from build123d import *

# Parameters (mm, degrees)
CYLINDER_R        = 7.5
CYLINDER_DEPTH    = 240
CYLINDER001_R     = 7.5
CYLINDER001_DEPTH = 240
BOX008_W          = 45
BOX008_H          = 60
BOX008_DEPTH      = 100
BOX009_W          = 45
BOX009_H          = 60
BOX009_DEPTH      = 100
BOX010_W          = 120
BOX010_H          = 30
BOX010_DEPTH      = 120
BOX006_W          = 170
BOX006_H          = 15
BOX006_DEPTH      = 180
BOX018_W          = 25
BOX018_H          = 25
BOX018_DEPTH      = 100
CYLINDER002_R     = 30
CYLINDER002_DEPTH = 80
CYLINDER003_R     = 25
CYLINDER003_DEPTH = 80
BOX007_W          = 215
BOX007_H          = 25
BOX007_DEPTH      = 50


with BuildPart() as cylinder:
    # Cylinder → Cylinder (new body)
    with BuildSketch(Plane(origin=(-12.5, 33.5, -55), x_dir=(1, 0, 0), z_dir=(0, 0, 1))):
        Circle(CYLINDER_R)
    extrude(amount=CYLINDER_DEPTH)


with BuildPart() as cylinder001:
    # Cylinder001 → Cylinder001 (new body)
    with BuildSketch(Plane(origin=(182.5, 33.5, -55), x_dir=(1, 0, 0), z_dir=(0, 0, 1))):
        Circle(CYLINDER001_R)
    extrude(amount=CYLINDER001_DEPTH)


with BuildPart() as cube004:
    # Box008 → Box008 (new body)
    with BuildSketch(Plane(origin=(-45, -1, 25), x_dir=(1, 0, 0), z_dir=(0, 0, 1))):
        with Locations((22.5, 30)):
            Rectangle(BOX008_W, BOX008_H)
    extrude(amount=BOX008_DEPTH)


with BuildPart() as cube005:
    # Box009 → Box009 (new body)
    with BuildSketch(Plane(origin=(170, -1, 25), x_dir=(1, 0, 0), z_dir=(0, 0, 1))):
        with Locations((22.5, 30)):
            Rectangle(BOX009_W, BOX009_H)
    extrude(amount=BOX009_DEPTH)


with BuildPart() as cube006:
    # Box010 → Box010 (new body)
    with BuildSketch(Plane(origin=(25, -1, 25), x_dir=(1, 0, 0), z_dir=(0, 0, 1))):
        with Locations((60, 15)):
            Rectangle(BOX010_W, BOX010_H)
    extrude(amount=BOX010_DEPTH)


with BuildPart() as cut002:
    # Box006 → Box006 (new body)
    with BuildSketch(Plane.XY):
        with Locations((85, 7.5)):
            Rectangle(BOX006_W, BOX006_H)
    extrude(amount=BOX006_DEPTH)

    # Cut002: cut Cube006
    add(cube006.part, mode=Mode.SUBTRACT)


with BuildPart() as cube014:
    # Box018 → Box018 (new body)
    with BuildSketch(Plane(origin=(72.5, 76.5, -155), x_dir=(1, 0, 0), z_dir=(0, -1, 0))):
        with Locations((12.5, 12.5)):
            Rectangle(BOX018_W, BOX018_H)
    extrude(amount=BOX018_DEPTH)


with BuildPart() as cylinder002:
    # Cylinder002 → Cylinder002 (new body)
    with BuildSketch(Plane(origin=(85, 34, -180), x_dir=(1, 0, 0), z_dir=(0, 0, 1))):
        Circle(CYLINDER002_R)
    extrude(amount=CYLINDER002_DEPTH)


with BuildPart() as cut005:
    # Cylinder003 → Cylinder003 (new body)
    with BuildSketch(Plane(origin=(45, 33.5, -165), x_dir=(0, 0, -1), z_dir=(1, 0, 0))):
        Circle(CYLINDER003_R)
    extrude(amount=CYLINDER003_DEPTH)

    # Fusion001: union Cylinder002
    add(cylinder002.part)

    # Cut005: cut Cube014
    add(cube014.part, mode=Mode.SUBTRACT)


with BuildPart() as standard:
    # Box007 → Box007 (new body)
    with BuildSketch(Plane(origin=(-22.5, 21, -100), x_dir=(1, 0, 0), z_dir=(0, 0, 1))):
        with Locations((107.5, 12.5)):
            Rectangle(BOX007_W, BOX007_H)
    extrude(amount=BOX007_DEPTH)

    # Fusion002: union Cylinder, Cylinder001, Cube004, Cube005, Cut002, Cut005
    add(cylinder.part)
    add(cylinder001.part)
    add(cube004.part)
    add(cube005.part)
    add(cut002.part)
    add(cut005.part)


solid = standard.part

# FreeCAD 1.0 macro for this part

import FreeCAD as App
import Part
import Sketcher
Q = App.Units.Quantity


def add_polygon(sketch, points):
    """Adds a closed chain of lines whose ends are joined by coincident constraints."""
    first, n = sketch.GeometryCount, len(points)
    for a, b in zip(points, points[1:] + points[:1]):
        sketch.addGeometry(Part.LineSegment(App.Vector(*a, 0), App.Vector(*b, 0)), False)
    for i in range(n):
        sketch.addConstraint(Sketcher.Constraint("Coincident", first + i, 2, first + (i + 1) % n, 1))

doc = App.newDocument("Part")
body = doc.addObject("PartDesign::Body", "Body")

sketch1 = body.newObject("Sketcher::SketchObject", "Sketch")
sketch1.AttachmentSupport = (doc.getObject("XY_Plane"), [""])
sketch1.MapMode = "FlatFace"
sketch1.AttachmentOffset = App.Placement(App.Vector(0, 0, -55), App.Rotation())
sketch1.addGeometry(Part.Circle(App.Vector(-12, 34, 0), App.Vector(0, 0, 1), 8), False)
sketch1.addConstraint([
    Sketcher.Constraint("Diameter", 0, Q("15 mm")),
    Sketcher.Constraint("DistanceX", 0, 3, -1, 1, Q("12.5 mm")),
    Sketcher.Constraint("DistanceY", -1, 1, 0, 3, Q("33.5 mm")),
])
pad1 = body.newObject("PartDesign::Pad", "Pad")
pad1.Profile = sketch1
pad1.Length = 240
body2 = doc.addObject("PartDesign::Body", "Body001")

sketch2 = body2.newObject("Sketcher::SketchObject", "Sketch001")
sketch2.AttachmentSupport = (doc.getObject("XY_Plane001"), [""])
sketch2.MapMode = "FlatFace"
sketch2.AttachmentOffset = App.Placement(App.Vector(0, 0, -55), App.Rotation())
sketch2.addGeometry(Part.Circle(App.Vector(182, 34, 0), App.Vector(0, 0, 1), 8), False)
sketch2.addConstraint([
    Sketcher.Constraint("Diameter", 0, Q("15 mm")),
    Sketcher.Constraint("DistanceX", -1, 1, 0, 3, Q("182.5 mm")),
    Sketcher.Constraint("DistanceY", -1, 1, 0, 3, Q("33.5 mm")),
])
pad2 = body2.newObject("PartDesign::Pad", "Pad001")
pad2.Profile = sketch2
pad2.Length = 240
body3 = doc.addObject("PartDesign::Body", "Body002")

sketch3 = body3.newObject("Sketcher::SketchObject", "Sketch002")
sketch3.AttachmentSupport = (doc.getObject("XY_Plane002"), [""])
sketch3.MapMode = "FlatFace"
sketch3.AttachmentOffset = App.Placement(App.Vector(0, 0, 25), App.Rotation())
add_polygon(sketch3, [(-45, 59), (-45, -1), (0, -1), (0, 59)])
sketch3.addConstraint([
    Sketcher.Constraint("Vertical", 0),
    Sketcher.Constraint("Horizontal", 1),
    Sketcher.Constraint("Vertical", 2),
    Sketcher.Constraint("Horizontal", 3),
    Sketcher.Constraint("PointOnObject", 1, 2, -2),
    Sketcher.Constraint("DistanceX", 1, 1, 1, 2, Q("45 mm")),
    Sketcher.Constraint("DistanceY", 0, 2, 0, 1, Q("60 mm")),
    Sketcher.Constraint("DistanceY", 0, 2, -1, 1, Q("1 mm")),
])
pad3 = body3.newObject("PartDesign::Pad", "Pad002")
pad3.Profile = sketch3
pad3.Length = 100
body4 = doc.addObject("PartDesign::Body", "Body003")

sketch4 = body4.newObject("Sketcher::SketchObject", "Sketch003")
sketch4.AttachmentSupport = (doc.getObject("XY_Plane003"), [""])
sketch4.MapMode = "FlatFace"
sketch4.AttachmentOffset = App.Placement(App.Vector(0, 0, 25), App.Rotation())
add_polygon(sketch4, [(170, 59), (170, -1), (215, -1), (215, 59)])
sketch4.addConstraint([
    Sketcher.Constraint("Vertical", 0),
    Sketcher.Constraint("Horizontal", 1),
    Sketcher.Constraint("Vertical", 2),
    Sketcher.Constraint("Horizontal", 3),
    Sketcher.Constraint("DistanceX", 1, 1, 1, 2, Q("45 mm")),
    Sketcher.Constraint("DistanceY", 0, 2, 0, 1, Q("60 mm")),
    Sketcher.Constraint("DistanceX", -1, 1, 0, 2, Q("170 mm")),
    Sketcher.Constraint("DistanceY", 0, 2, -1, 1, Q("1 mm")),
])
pad4 = body4.newObject("PartDesign::Pad", "Pad003")
pad4.Profile = sketch4
pad4.Length = 100
body5 = doc.addObject("PartDesign::Body", "Body004")

sketch5 = body5.newObject("Sketcher::SketchObject", "Sketch004")
sketch5.AttachmentSupport = (doc.getObject("XY_Plane004"), [""])
sketch5.MapMode = "FlatFace"
sketch5.AttachmentOffset = App.Placement(App.Vector(0, 0, 25), App.Rotation())
add_polygon(sketch5, [(25, 29), (25, -1), (145, -1), (145, 29)])
sketch5.addConstraint([
    Sketcher.Constraint("Vertical", 0),
    Sketcher.Constraint("Horizontal", 1),
    Sketcher.Constraint("Vertical", 2),
    Sketcher.Constraint("Horizontal", 3),
    Sketcher.Constraint("DistanceX", 1, 1, 1, 2, Q("120 mm")),
    Sketcher.Constraint("DistanceY", 0, 2, 0, 1, Q("30 mm")),
    Sketcher.Constraint("DistanceX", -1, 1, 0, 2, Q("25 mm")),
    Sketcher.Constraint("DistanceY", 0, 2, -1, 1, Q("1 mm")),
])
pad5 = body5.newObject("PartDesign::Pad", "Pad004")
pad5.Profile = sketch5
pad5.Length = 120
body6 = doc.addObject("PartDesign::Body", "Body005")

sketch6 = body6.newObject("Sketcher::SketchObject", "Sketch005")
sketch6.AttachmentSupport = (doc.getObject("XY_Plane005"), [""])
sketch6.MapMode = "FlatFace"
add_polygon(sketch6, [(0, 15), (0, 0), (170, 0), (170, 15)])
sketch6.addConstraint([
    Sketcher.Constraint("Vertical", 0),
    Sketcher.Constraint("Horizontal", 1),
    Sketcher.Constraint("Vertical", 2),
    Sketcher.Constraint("Horizontal", 3),
    Sketcher.Constraint("Coincident", 0, 2, -1, 1),
    Sketcher.Constraint("DistanceX", 1, 1, 1, 2, Q("170 mm")),
    Sketcher.Constraint("DistanceY", 0, 2, 0, 1, Q("15 mm")),
])
pad6 = body6.newObject("PartDesign::Pad", "Pad005")
pad6.Profile = sketch6
pad6.Length = 180
doc.recompute()

boolean = body6.newObject("PartDesign::Boolean", "Boolean")
boolean.Type = "Cut"
boolean.addObjects([body5])
body7 = doc.addObject("PartDesign::Body", "Body006")

sketch7 = body7.newObject("Sketcher::SketchObject", "Sketch006")
sketch7.AttachmentSupport = (doc.getObject("XZ_Plane006"), [""])
sketch7.MapMode = "FlatFace"
sketch7.AttachmentOffset = App.Placement(App.Vector(0, 0, -76.5), App.Rotation())
add_polygon(sketch7, [(72, -130), (72, -155), (98, -155), (98, -130)])
sketch7.addConstraint([
    Sketcher.Constraint("Vertical", 0),
    Sketcher.Constraint("Horizontal", 1),
    Sketcher.Constraint("Vertical", 2),
    Sketcher.Constraint("Horizontal", 3),
    Sketcher.Constraint("Equal", 3, 0),
    Sketcher.Constraint("DistanceX", 1, 1, 1, 2, Q("25 mm")),
    Sketcher.Constraint("DistanceY", 0, 2, -1, 1, Q("155 mm")),
    Sketcher.Constraint("DistanceX", -1, 1, 0, 2, Q("72.5 mm")),
])
pad7 = body7.newObject("PartDesign::Pad", "Pad006")
pad7.Profile = sketch7
pad7.Length = 100
body8 = doc.addObject("PartDesign::Body", "Body007")

sketch8 = body8.newObject("Sketcher::SketchObject", "Sketch007")
sketch8.AttachmentSupport = (doc.getObject("XY_Plane007"), [""])
sketch8.MapMode = "FlatFace"
sketch8.AttachmentOffset = App.Placement(App.Vector(0, 0, -180), App.Rotation())
sketch8.addGeometry(Part.Circle(App.Vector(85, 34, 0), App.Vector(0, 0, 1), 30), False)
sketch8.addConstraint([
    Sketcher.Constraint("Diameter", 0, Q("60 mm")),
    Sketcher.Constraint("DistanceX", -1, 1, 0, 3, Q("85 mm")),
    Sketcher.Constraint("DistanceY", -1, 1, 0, 3, Q("34 mm")),
])
pad8 = body8.newObject("PartDesign::Pad", "Pad007")
pad8.Profile = sketch8
pad8.Length = 80
body9 = doc.addObject("PartDesign::Body", "Body008")

sketch9 = body9.newObject("Sketcher::SketchObject", "Sketch008")
sketch9.AttachmentSupport = (doc.getObject("YZ_Plane008"), [""])
sketch9.MapMode = "FlatFace"
sketch9.AttachmentOffset = App.Placement(App.Vector(0, 0, 45), App.Rotation())
sketch9.addGeometry(Part.Circle(App.Vector(34, -165, 0), App.Vector(0, 0, 1), 25), False)
sketch9.addConstraint([
    Sketcher.Constraint("Diameter", 0, Q("50 mm")),
    Sketcher.Constraint("DistanceY", 0, 3, -1, 1, Q("165 mm")),
    Sketcher.Constraint("DistanceX", -1, 1, 0, 3, Q("33.5 mm")),
])
pad9 = body9.newObject("PartDesign::Pad", "Pad008")
pad9.Profile = sketch9
pad9.Length = 80
doc.recompute()

boolean2 = body9.newObject("PartDesign::Boolean", "Boolean001")
boolean2.Type = "Fuse"
boolean2.addObjects([body8])
doc.recompute()

boolean3 = body9.newObject("PartDesign::Boolean", "Boolean002")
boolean3.Type = "Cut"
boolean3.addObjects([body7])
body10 = doc.addObject("PartDesign::Body", "Body009")

sketch10 = body10.newObject("Sketcher::SketchObject", "Sketch009")
sketch10.AttachmentSupport = (doc.getObject("XY_Plane009"), [""])
sketch10.MapMode = "FlatFace"
sketch10.AttachmentOffset = App.Placement(App.Vector(0, 0, -100), App.Rotation())
add_polygon(sketch10, [(-22, 46), (-22, 21), (192, 21), (192, 46)])
sketch10.addConstraint([
    Sketcher.Constraint("Vertical", 0),
    Sketcher.Constraint("Horizontal", 1),
    Sketcher.Constraint("Vertical", 2),
    Sketcher.Constraint("Horizontal", 3),
    Sketcher.Constraint("DistanceX", 1, 1, 1, 2, Q("215 mm")),
    Sketcher.Constraint("DistanceY", 0, 2, 0, 1, Q("25 mm")),
    Sketcher.Constraint("DistanceY", -1, 1, 0, 2, Q("21 mm")),
    Sketcher.Constraint("DistanceX", 0, 2, -1, 1, Q("22.5 mm")),
])
pad10 = body10.newObject("PartDesign::Pad", "Pad009")
pad10.Profile = sketch10
pad10.Length = 50
doc.recompute()

boolean4 = body10.newObject("PartDesign::Boolean", "Boolean003")
boolean4.Type = "Fuse"
boolean4.addObjects([body])
doc.recompute()

boolean5 = body10.newObject("PartDesign::Boolean", "Boolean004")
boolean5.Type = "Fuse"
boolean5.addObjects([body2])
doc.recompute()

boolean6 = body10.newObject("PartDesign::Boolean", "Boolean005")
boolean6.Type = "Fuse"
boolean6.addObjects([body3])
doc.recompute()

boolean7 = body10.newObject("PartDesign::Boolean", "Boolean006")
boolean7.Type = "Fuse"
boolean7.addObjects([body4])
doc.recompute()

boolean8 = body10.newObject("PartDesign::Boolean", "Boolean007")
boolean8.Type = "Fuse"
boolean8.addObjects([body6])
doc.recompute()

boolean9 = body10.newObject("PartDesign::Boolean", "Boolean008")
boolean9.Type = "Fuse"
boolean9.addObjects([body9])

doc.recompute()
